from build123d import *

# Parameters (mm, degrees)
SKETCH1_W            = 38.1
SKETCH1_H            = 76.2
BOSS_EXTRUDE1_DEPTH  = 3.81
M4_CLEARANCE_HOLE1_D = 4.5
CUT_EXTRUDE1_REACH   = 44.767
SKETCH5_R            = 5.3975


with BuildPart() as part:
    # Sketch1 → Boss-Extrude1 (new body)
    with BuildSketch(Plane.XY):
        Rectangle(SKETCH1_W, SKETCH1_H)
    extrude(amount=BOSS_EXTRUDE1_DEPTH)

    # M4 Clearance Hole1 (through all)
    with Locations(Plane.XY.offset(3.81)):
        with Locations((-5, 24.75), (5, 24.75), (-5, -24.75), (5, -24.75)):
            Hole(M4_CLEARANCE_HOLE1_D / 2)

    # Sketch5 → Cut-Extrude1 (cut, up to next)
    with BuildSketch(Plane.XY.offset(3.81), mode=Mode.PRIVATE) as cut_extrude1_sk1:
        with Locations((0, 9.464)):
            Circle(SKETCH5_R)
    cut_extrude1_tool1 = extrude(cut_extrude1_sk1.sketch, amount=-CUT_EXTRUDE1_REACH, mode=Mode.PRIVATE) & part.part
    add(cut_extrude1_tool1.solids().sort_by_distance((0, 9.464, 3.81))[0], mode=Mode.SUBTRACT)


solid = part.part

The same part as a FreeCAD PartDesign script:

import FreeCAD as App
import Part
import Sketcher
Q = App.Units.Quantity

doc = App.newDocument("Part")
params = doc.addObject("Spreadsheet::Sheet", "Params")
for row, (alias, value) in enumerate([
    ("sketch1_height", "3 in"),
    ("sketch1_width", "1.5 in"),
    ("pad1_length", "0.15 in"),
    ("hole_diameter", "4.5 mm"),
    ("sketch3_diameter", "0.425 in"),
], start=1):
    params.set(f"A{row}", alias)
    params.set(f"B{row}", "=" + value)
    params.setAlias(f"B{row}", alias)

body = doc.addObject("PartDesign::Body", "Body")

sketch1 = body.newObject("Sketcher::SketchObject", "Sketch")
sketch1.AttachmentSupport = (doc.getObject("XY_Plane"), [""])
sketch1.MapMode = "FlatFace"
sketch1.addGeometry(Part.LineSegment(App.Vector(-19, 38, 0), App.Vector(-19, -38, 0)), False)
sketch1.addGeometry(Part.LineSegment(App.Vector(-19, -38, 0), App.Vector(19, -38, 0)), False)
sketch1.addGeometry(Part.LineSegment(App.Vector(19, -38, 0), App.Vector(19, 38, 0)), False)
sketch1.addGeometry(Part.LineSegment(App.Vector(19, 38, 0), App.Vector(-19, 38, 0)), False)
sketch1.addConstraint(Sketcher.Constraint("Coincident", 0, 2, 1, 1))
sketch1.addConstraint(Sketcher.Constraint("Coincident", 1, 2, 2, 1))
sketch1.addConstraint(Sketcher.Constraint("Coincident", 2, 2, 3, 1))
sketch1.addConstraint(Sketcher.Constraint("Coincident", 3, 2, 0, 1))
sketch1.addConstraint(Sketcher.Constraint("Vertical", 0))
sketch1.addConstraint(Sketcher.Constraint("Horizontal", 1))
sketch1.addConstraint(Sketcher.Constraint("Vertical", 2))
sketch1.addConstraint(Sketcher.Constraint("Horizontal", 3))
sketch1.addConstraint(Sketcher.Constraint("Symmetric", 0, 2, 2, 2, -1, 1))
sketch1.addConstraint(Sketcher.Constraint("DistanceY", 0, 2, 0, 1, Q("3 in")))
sketch1.addConstraint(Sketcher.Constraint("DistanceX", 1, 1, 1, 2, Q("1.5 in")))
sketch1.setExpression("Constraints[9]", "Params.sketch1_height")
sketch1.setExpression("Constraints[10]", "Params.sketch1_width")
pad1 = body.newObject("PartDesign::Pad", "Pad")
pad1.Profile = sketch1
pad1.setExpression("Length", "Params.pad1_length")

sketch2 = body.newObject("Sketcher::SketchObject", "Sketch001")
sketch2.AttachmentSupport = (doc.getObject("XY_Plane"), [""])
sketch2.MapMode = "FlatFace"
sketch2.AttachmentOffset = App.Placement(App.Vector(0, 0, 0.15 * 25.4), App.Rotation())
sketch2.addGeometry(Part.Circle(App.Vector(-5, 24.8, 0), App.Vector(0, 0, 1), 2.2), False)
sketch2.addGeometry(Part.Circle(App.Vector(5, 24.8, 0), App.Vector(0, 0, 1), 2.2), False)
sketch2.addGeometry(Part.Circle(App.Vector(-5, -24.8, 0), App.Vector(0, 0, 1), 2.2), False)
sketch2.addGeometry(Part.Circle(App.Vector(5, -24.8, 0), App.Vector(0, 0, 1), 2.2), False)
sketch2.addConstraint(Sketcher.Constraint("Equal", 0, 1))
sketch2.addConstraint(Sketcher.Constraint("Equal", 1, 2))
sketch2.addConstraint(Sketcher.Constraint("Equal", 2, 3))
sketch2.addConstraint(Sketcher.Constraint("Symmetric", 1, 3, 2, 3, -1, 1))
sketch2.addConstraint(Sketcher.Constraint("Symmetric", 0, 3, 3, 3, -1, 1))
sketch2.addConstraint(Sketcher.Constraint("Symmetric", 0, 3, 1, 3, -2))
sketch2.addConstraint(Sketcher.Constraint("Diameter", 0, Q("4.5 mm")))
sketch2.addConstraint(Sketcher.Constraint("DistanceX", 0, 3, -1, 1, Q("5 mm")))
sketch2.addConstraint(Sketcher.Constraint("DistanceY", -1, 1, 0, 3, Q("24.75 mm")))
doc.recompute()
hole = body.newObject("PartDesign::Hole", "Hole")
hole.Profile = sketch2
hole.ThreadType = "None"
hole.setExpression("Diameter", "Params.hole_diameter")
hole.DepthType = "ThroughAll"

sketch3 = body.newObject("Sketcher::SketchObject", "Sketch002")
sketch3.AttachmentSupport = (doc.getObject("XY_Plane"), [""])
sketch3.MapMode = "FlatFace"
sketch3.AttachmentOffset = App.Placement(App.Vector(0, 0, 0.15 * 25.4), App.Rotation())
sketch3.addGeometry(Part.Circle(App.Vector(0, 9, 0), App.Vector(0, 0, 1), 5), False)
sketch3.addConstraint(Sketcher.Constraint("PointOnObject", 0, 3, -2))
sketch3.addConstraint(Sketcher.Constraint("Diameter", 0, Q("0.425 in")))
sketch3.addConstraint(Sketcher.Constraint("DistanceY", -1, 1, 0, 3, Q("9.464 mm")))
sketch3.setExpression("Constraints[1]", "Params.sketch3_diameter")
pocket1 = body.newObject("PartDesign::Pocket", "Pocket")
pocket1.Profile = sketch3
pocket1.Type = "UpToFirst"

doc.recompute()
